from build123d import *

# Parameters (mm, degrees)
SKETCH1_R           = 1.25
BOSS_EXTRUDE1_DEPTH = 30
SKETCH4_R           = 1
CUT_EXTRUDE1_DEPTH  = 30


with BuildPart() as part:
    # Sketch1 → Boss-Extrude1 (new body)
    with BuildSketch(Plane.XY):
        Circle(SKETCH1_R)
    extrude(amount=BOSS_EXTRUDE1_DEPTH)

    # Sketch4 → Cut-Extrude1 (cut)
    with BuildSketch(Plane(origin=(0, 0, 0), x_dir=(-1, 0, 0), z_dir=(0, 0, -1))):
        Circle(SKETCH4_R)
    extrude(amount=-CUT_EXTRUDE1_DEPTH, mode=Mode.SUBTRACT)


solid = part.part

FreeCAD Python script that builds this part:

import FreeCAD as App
import Part
import Sketcher
from FreeCAD import Vector

doc = App.newDocument("Part")
body = doc.addObject("PartDesign::Body", "Body")

# Sketch on XY plane
sketch1 = body.newObject("Sketcher::SketchObject", "Sketch")
sketch1.AttachmentSupport = (doc.getObject("XY_Plane"), [""])
sketch1.MapMode = "FlatFace"
sketch1.addGeometry(Part.Circle(Vector(0, 0, 0), Vector(0, 0, 1), 1.25), False)
sketch1.addConstraint(Sketcher.Constraint("Coincident", 0, 3, -1, 1))
sketch1.addConstraint(Sketcher.Constraint("Diameter", 0, 2.5))
pad1 = body.newObject("PartDesign::Pad", "Pad")
pad1.Profile = sketch1
pad1.Length = 30

# Sketch on XY plane
sketch2 = body.newObject("Sketcher::SketchObject", "Sketch001")
sketch2.AttachmentSupport = (doc.getObject("XY_Plane"), [""])
sketch2.MapMode = "FlatFace"
sketch2.addGeometry(Part.Circle(Vector(0, 0, 0), Vector(0, 0, 1), 1), False)
sketch2.addConstraint(Sketcher.Constraint("Coincident", 0, 3, -1, 1))
sketch2.addConstraint(Sketcher.Constraint("Diameter", 0, 2.0))
pocket1 = body.newObject("PartDesign::Pocket", "Pocket")
pocket1.Profile = sketch2
pocket1.Length = 30
pocket1.Reversed = True

doc.recompute()
